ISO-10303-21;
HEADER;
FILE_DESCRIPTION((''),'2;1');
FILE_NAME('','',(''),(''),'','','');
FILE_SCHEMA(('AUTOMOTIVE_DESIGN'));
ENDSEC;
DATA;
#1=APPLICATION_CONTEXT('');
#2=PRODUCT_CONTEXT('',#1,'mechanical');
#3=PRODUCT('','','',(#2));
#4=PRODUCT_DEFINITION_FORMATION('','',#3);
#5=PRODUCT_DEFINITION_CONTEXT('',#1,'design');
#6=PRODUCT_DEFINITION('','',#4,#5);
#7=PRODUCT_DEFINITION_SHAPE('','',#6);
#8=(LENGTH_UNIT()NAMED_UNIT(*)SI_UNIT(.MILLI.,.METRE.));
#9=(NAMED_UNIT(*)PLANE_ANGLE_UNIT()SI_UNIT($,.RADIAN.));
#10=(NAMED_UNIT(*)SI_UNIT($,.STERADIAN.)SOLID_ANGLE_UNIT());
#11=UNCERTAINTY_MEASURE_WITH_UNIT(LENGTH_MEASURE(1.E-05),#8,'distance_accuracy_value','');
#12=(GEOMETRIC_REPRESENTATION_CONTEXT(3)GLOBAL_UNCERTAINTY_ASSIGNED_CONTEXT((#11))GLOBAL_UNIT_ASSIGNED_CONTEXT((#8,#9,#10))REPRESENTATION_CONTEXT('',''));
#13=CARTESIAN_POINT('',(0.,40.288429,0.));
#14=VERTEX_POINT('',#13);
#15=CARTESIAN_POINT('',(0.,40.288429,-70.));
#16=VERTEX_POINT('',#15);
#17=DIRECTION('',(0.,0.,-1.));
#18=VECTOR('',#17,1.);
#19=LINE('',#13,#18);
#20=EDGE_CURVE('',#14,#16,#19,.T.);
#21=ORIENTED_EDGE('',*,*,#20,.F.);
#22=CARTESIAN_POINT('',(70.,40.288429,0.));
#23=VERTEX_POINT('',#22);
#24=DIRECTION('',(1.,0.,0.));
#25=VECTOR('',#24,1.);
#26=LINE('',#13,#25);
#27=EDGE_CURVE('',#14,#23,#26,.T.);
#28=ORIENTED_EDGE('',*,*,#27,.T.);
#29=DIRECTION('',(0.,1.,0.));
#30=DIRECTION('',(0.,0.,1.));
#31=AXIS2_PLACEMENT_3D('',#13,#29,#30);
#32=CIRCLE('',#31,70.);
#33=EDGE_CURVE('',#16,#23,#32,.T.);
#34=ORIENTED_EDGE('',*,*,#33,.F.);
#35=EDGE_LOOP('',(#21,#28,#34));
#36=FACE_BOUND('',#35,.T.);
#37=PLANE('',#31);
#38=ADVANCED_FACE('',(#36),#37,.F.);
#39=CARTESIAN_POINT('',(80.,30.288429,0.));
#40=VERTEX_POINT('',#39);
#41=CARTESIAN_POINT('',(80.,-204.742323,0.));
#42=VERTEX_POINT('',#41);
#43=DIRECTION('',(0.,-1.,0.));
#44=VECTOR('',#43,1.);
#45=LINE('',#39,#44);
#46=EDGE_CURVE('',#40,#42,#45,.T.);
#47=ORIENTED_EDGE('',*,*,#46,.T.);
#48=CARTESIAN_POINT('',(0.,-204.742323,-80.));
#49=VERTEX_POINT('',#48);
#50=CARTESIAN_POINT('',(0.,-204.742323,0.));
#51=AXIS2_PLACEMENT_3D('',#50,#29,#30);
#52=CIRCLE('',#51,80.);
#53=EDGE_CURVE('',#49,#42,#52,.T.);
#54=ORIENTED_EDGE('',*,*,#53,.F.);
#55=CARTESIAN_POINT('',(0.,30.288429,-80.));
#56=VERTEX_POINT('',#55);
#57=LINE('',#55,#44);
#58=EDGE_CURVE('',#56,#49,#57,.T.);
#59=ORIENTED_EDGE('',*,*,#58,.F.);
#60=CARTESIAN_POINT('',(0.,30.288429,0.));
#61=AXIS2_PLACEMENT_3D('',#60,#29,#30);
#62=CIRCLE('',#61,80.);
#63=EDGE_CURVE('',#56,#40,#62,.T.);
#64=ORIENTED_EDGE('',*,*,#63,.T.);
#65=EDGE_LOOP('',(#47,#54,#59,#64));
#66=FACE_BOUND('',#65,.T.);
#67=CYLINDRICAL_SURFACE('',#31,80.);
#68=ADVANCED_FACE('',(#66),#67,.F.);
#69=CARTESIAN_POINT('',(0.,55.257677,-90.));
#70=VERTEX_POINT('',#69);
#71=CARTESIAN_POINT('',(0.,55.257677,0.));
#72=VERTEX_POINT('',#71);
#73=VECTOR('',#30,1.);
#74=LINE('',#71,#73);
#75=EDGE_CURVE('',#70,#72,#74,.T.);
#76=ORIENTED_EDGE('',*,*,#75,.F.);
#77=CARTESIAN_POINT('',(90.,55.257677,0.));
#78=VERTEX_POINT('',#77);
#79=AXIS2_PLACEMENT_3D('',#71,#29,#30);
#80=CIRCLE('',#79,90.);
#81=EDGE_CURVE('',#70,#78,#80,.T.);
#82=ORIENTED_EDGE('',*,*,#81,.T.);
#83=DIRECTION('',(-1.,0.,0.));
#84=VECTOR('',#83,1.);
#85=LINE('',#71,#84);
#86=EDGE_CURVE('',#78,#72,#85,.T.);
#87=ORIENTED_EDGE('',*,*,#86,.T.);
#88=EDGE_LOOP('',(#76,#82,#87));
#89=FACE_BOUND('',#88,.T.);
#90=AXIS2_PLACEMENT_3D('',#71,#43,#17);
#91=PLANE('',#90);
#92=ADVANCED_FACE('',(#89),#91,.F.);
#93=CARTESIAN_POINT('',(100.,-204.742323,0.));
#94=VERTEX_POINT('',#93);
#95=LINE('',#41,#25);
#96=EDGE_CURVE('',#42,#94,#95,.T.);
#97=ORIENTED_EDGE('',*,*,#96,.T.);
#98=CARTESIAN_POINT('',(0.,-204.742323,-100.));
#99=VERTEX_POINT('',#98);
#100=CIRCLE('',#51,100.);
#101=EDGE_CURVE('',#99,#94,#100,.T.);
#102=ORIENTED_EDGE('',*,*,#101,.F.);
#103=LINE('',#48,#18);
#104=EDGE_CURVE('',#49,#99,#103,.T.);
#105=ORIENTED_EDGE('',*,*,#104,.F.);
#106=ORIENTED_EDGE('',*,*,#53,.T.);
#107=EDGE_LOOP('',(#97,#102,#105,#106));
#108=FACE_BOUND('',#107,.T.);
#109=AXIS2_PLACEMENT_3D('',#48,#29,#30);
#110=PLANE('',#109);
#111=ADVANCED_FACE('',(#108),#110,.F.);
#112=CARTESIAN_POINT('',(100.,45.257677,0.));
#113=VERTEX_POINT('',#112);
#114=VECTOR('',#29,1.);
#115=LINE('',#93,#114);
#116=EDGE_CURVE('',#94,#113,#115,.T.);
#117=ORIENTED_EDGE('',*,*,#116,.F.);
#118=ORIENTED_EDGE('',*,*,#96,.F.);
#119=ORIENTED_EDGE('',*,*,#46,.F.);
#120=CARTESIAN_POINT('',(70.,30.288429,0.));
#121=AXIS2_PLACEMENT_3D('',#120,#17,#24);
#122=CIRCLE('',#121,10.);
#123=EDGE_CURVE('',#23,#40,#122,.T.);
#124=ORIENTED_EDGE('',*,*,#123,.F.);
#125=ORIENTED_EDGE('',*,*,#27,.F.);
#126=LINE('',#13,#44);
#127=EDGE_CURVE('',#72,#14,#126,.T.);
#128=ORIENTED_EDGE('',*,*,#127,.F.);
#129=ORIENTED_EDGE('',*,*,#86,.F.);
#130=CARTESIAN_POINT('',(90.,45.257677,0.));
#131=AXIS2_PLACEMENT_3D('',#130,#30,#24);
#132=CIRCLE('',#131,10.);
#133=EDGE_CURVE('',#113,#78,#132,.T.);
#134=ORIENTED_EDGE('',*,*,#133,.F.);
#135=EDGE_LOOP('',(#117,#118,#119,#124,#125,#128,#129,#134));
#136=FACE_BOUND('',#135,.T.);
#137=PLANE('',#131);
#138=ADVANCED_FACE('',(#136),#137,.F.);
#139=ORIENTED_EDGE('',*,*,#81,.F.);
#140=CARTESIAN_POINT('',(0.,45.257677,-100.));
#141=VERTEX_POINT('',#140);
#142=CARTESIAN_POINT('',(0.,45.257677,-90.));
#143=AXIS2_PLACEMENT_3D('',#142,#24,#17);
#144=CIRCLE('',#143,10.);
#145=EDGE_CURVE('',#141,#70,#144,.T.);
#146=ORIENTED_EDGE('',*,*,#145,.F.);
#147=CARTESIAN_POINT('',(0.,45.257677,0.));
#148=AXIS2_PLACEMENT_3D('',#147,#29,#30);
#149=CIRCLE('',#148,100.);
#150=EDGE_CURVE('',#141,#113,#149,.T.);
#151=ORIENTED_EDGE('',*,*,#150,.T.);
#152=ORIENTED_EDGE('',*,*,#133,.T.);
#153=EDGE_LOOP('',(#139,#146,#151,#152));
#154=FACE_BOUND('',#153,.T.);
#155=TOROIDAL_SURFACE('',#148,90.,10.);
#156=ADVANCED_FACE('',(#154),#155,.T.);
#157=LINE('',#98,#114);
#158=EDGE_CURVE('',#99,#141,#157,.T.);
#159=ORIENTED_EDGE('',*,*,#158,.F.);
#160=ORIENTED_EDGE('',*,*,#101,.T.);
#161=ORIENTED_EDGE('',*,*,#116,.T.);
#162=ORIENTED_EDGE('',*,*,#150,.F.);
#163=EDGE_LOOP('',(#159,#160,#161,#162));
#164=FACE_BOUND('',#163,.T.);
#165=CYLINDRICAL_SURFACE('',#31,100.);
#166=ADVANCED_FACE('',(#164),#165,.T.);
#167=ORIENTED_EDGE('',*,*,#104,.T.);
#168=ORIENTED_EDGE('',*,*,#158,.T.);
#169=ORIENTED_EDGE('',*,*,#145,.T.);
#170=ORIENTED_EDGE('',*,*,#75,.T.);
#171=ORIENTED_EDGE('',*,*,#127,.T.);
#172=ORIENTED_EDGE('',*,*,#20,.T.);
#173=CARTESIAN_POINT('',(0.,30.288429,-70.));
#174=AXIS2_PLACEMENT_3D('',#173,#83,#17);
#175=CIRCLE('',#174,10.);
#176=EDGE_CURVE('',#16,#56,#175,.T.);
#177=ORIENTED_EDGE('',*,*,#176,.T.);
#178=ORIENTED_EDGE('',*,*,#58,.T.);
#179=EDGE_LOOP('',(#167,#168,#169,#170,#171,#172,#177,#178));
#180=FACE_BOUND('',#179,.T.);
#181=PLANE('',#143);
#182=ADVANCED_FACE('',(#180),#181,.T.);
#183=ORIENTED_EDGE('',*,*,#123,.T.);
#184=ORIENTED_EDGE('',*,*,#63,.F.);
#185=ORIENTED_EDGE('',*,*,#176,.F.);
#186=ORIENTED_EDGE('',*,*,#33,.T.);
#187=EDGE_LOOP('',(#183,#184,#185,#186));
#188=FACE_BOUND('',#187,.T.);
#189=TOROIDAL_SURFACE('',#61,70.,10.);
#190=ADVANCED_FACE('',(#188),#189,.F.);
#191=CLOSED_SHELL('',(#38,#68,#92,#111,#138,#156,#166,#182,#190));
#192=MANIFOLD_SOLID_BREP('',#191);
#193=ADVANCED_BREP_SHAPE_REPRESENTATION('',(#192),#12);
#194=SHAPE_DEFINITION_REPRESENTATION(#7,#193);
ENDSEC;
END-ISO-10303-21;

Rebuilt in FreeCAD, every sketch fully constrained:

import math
import FreeCAD as App
import Part
import Sketcher
from FreeCAD import Vector
Q = App.Units.Quantity

doc = App.newDocument("Part")
params = doc.addObject("Spreadsheet::Sheet", "Params")
for row, (alias, value) in enumerate([
    ("sketch1_radius", "10 mm"),
    ("sketch1_width", "70 mm"),
    ("sketch1_width2", "20 mm"),
    ("sketch1_height", "250 mm"),
    ("revolution_angle", "270 deg"),
], start=1):
    params.set(f"A{row}", alias)
    params.set(f"B{row}", "=" + value)
    params.setAlias(f"B{row}", alias)

body = doc.addObject("PartDesign::Body", "Body")

# Sketch on XY plane
sketch1 = body.newObject("Sketcher::SketchObject", "Sketch")
sketch1.AttachmentSupport = (doc.getObject("XY_Plane"), [""])
sketch1.MapMode = "FlatFace"
sketch1.addGeometry(Part.LineSegment(Vector(0, 40, 0), Vector(70, 40, 0)), False)
sketch1.addGeometry(Part.ArcOfCircle(Part.Circle(Vector(70, 30, 0), Vector(0, 0, 1), 10), math.radians(0), math.radians(90)), False)
sketch1.addGeometry(Part.LineSegment(Vector(80, 30, 0), Vector(80, -205, 0)), False)
sketch1.addGeometry(Part.LineSegment(Vector(80, -205, 0), Vector(100, -205, 0)), False)
sketch1.addGeometry(Part.LineSegment(Vector(100, -205, 0), Vector(100, 45, 0)), False)
sketch1.addGeometry(Part.ArcOfCircle(Part.Circle(Vector(90, 45, 0), Vector(0, 0, 1), 10), math.radians(0), math.radians(90)), False)
sketch1.addGeometry(Part.LineSegment(Vector(90, 55, 0), Vector(0, 55, 0)), False)
sketch1.addGeometry(Part.LineSegment(Vector(0, 55, 0), Vector(0, 40, 0)), False)
sketch1.addConstraint(Sketcher.Constraint("Tangent", 0, 2, 1, 2))
sketch1.addConstraint(Sketcher.Constraint("Tangent", 1, 1, 2, 1))
sketch1.addConstraint(Sketcher.Constraint("Coincident", 2, 2, 3, 1))
sketch1.addConstraint(Sketcher.Constraint("Coincident", 3, 2, 4, 1))
sketch1.addConstraint(Sketcher.Constraint("Tangent", 4, 2, 5, 1))
sketch1.addConstraint(Sketcher.Constraint("Tangent", 5, 2, 6, 1))
sketch1.addConstraint(Sketcher.Constraint("Coincident", 6, 2, 7, 1))
sketch1.addConstraint(Sketcher.Constraint("Coincident", 7, 2, 0, 1))
sketch1.addConstraint(Sketcher.Constraint("Horizontal", 0))
sketch1.addConstraint(Sketcher.Constraint("Vertical", 2))
sketch1.addConstraint(Sketcher.Constraint("Horizontal", 3))
sketch1.addConstraint(Sketcher.Constraint("Vertical", 4))
sketch1.addConstraint(Sketcher.Constraint("Horizontal", 6))
sketch1.addConstraint(Sketcher.Constraint("Vertical", 7))
sketch1.addConstraint(Sketcher.Constraint("Equal", 1, 5))
sketch1.addConstraint(Sketcher.Constraint("PointOnObject", 6, 2, -2))
sketch1.addConstraint(Sketcher.Constraint("Radius", 1, Q("10 mm")))
sketch1.addConstraint(Sketcher.Constraint("DistanceX", 0, 1, 0, 2, Q("70 mm")))
sketch1.addConstraint(Sketcher.Constraint("DistanceX", 3, 1, 3, 2, Q("20 mm")))
sketch1.addConstraint(Sketcher.Constraint("DistanceY", 4, 1, 4, 2, Q("250 mm")))
sketch1.addConstraint(Sketcher.Constraint("DistanceY", 2, 2, 2, 1, Q("235.030752 mm")))
sketch1.addConstraint(Sketcher.Constraint("DistanceY", -1, 1, 1, 3, Q("30.288429 mm")))
sketch1.setExpression("Constraints[16]", "Params.sketch1_radius")
sketch1.setExpression("Constraints[17]", "Params.sketch1_width")
sketch1.setExpression("Constraints[18]", "Params.sketch1_width2")
sketch1.setExpression("Constraints[19]", "Params.sketch1_height")
revolution = body.newObject("PartDesign::Revolution", "Revolution")
revolution.Profile = sketch1
revolution.ReferenceAxis = (sketch1, ["V_Axis"])
revolution.setExpression("Angle", "Params.revolution_angle")
revolution.Reversed = True

doc.recompute()
